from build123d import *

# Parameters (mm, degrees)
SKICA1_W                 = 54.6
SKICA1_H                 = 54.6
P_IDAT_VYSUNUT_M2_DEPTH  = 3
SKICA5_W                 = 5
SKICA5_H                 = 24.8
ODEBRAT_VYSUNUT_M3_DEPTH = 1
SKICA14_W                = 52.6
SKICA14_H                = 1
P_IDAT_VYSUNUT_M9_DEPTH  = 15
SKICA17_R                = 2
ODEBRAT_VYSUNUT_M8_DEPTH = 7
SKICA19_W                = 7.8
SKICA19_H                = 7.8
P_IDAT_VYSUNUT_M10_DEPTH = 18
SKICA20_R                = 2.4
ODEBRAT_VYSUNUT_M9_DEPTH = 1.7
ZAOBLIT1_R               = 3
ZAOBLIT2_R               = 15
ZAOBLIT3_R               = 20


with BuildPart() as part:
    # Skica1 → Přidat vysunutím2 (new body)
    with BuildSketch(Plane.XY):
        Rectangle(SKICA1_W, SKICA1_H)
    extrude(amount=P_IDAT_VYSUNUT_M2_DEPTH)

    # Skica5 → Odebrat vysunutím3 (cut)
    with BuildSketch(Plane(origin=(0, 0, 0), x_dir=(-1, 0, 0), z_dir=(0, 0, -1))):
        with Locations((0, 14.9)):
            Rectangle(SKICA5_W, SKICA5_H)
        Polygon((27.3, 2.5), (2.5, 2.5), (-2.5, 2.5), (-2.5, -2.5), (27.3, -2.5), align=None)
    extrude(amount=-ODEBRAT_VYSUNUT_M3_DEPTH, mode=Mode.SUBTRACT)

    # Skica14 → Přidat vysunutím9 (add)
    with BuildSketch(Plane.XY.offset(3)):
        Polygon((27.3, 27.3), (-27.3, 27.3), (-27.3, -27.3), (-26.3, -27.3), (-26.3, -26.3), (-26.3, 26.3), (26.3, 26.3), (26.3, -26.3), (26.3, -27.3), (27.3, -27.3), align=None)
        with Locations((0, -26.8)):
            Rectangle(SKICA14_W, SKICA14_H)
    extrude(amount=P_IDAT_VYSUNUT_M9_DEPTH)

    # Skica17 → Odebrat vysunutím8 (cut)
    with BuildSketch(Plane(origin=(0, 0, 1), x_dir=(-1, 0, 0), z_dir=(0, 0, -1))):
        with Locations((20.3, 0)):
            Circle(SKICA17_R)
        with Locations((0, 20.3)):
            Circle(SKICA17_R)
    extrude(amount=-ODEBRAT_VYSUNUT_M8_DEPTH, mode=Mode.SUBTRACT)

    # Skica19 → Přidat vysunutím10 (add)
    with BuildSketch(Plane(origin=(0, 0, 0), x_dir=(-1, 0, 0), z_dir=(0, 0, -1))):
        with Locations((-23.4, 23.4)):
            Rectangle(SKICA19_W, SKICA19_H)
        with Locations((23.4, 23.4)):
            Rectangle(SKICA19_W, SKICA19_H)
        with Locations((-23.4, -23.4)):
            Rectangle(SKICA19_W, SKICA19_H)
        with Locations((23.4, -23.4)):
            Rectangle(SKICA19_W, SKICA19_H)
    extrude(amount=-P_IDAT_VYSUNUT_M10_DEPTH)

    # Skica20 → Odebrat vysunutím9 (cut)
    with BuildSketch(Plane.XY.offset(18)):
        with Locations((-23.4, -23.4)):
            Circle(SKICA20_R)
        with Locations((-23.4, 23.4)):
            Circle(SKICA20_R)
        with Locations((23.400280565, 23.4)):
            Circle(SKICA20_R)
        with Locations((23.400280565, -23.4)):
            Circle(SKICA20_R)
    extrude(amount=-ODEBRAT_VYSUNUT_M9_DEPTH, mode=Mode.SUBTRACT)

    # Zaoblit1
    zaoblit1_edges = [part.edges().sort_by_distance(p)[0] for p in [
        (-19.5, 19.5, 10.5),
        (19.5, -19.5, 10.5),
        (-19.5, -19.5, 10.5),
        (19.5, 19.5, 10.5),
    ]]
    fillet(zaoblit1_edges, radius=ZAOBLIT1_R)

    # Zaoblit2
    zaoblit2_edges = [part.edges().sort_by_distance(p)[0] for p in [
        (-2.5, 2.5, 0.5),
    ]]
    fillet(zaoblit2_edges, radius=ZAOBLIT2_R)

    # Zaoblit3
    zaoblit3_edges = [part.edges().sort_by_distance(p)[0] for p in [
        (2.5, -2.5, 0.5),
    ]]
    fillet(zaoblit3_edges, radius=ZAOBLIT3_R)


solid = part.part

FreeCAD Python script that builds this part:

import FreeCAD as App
import Part
import Sketcher
from FreeCAD import Vector


def edges_at(feature, points):
    """Names of the edges that pass closest to the given points."""
    edges = feature.Shape.Edges
    near = lambda p: min(range(len(edges)), key=lambda i: edges[i].distToShape(Part.Vertex(*p))[0])
    return sorted({f"Edge{near(p) + 1}" for p in points})


def add_polygon(sketch, points):
    """Adds a closed chain of lines whose ends are joined by coincident constraints."""
    first, n = sketch.GeometryCount, len(points)
    for a, b in zip(points, points[1:] + points[:1]):
        sketch.addGeometry(Part.LineSegment(App.Vector(*a, 0), App.Vector(*b, 0)), False)
    for i in range(n):
        sketch.addConstraint(Sketcher.Constraint("Coincident", first + i, 2, first + (i + 1) % n, 1))

doc = App.newDocument("Part")
body = doc.addObject("PartDesign::Body", "Body")

sketch1 = body.newObject("Sketcher::SketchObject", "Sketch")
sketch1.AttachmentSupport = (doc.getObject("XY_Plane"), [""])
sketch1.MapMode = "FlatFace"
add_polygon(sketch1, [(-27, 27), (-27, -27), (27, -27), (27, 27)])
sketch1.addConstraint(Sketcher.Constraint("Vertical", 0))
sketch1.addConstraint(Sketcher.Constraint("Horizontal", 1))
sketch1.addConstraint(Sketcher.Constraint("Vertical", 2))
sketch1.addConstraint(Sketcher.Constraint("Horizontal", 3))
sketch1.addConstraint(Sketcher.Constraint("Symmetric", 0, 2, 2, 2, -1, 1))
sketch1.addConstraint(Sketcher.Constraint("Equal", 3, 0))
sketch1.addConstraint(Sketcher.Constraint("DistanceX", 1, 1, 1, 2, 54.6))
pad1 = body.newObject("PartDesign::Pad", "Pad")
pad1.Profile = sketch1
pad1.Length = 3

sketch2 = body.newObject("Sketcher::SketchObject", "Sketch001")
sketch2.AttachmentSupport = (doc.getObject("XY_Plane"), [""])
sketch2.MapMode = "FlatFace"
add_polygon(sketch2, [(2, 27), (2, -2), (-27, -2), (-27, 2), (-2, 2), (-2, 27)])
sketch2.addConstraint(Sketcher.Constraint("Vertical", 0))
sketch2.addConstraint(Sketcher.Constraint("Horizontal", 1))
sketch2.addConstraint(Sketcher.Constraint("Vertical", 2))
sketch2.addConstraint(Sketcher.Constraint("Horizontal", 3))
sketch2.addConstraint(Sketcher.Constraint("Vertical", 4))
sketch2.addConstraint(Sketcher.Constraint("Horizontal", 5))
sketch2.addConstraint(Sketcher.Constraint("Symmetric", 0, 2, 3, 2, -1, 1))
sketch2.addConstraint(Sketcher.Constraint("Equal", 1, 0))
sketch2.addConstraint(Sketcher.Constraint("Equal", 5, 2))
sketch2.addConstraint(Sketcher.Constraint("DistanceX", 5, 1, 5, 2, 5.0))
sketch2.addConstraint(Sketcher.Constraint("DistanceX", 1, 2, 1, 1, 29.8))
pocket1 = body.newObject("PartDesign::Pocket", "Pocket")
pocket1.Profile = sketch2
pocket1.Length = 1
pocket1.Reversed = True

sketch3 = body.newObject("Sketcher::SketchObject", "Sketch002")
sketch3.AttachmentSupport = (doc.getObject("XY_Plane"), [""])
sketch3.MapMode = "FlatFace"
sketch3.AttachmentOffset = App.Placement(Vector(0, 0, 3), App.Rotation())
add_polygon(sketch3, [(27, 27), (-27, 27), (-27, -27), (27, -27)])
add_polygon(sketch3, [(-26, -26), (-26, 26), (26, 26), (26, -26)])
sketch3.addConstraint(Sketcher.Constraint("Horizontal", 0))
sketch3.addConstraint(Sketcher.Constraint("Vertical", 1))
sketch3.addConstraint(Sketcher.Constraint("Horizontal", 2))
sketch3.addConstraint(Sketcher.Constraint("Vertical", 3))
sketch3.addConstraint(Sketcher.Constraint("Vertical", 4))
sketch3.addConstraint(Sketcher.Constraint("Horizontal", 5))
sketch3.addConstraint(Sketcher.Constraint("Vertical", 6))
sketch3.addConstraint(Sketcher.Constraint("Horizontal", 7))
sketch3.addConstraint(Sketcher.Constraint("Symmetric", 0, 2, 2, 2, -1, 1))
sketch3.addConstraint(Sketcher.Constraint("Symmetric", 4, 2, 6, 2, -1, 1))
sketch3.addConstraint(Sketcher.Constraint("Equal", 2, 1))
sketch3.addConstraint(Sketcher.Constraint("Equal", 7, 4))
sketch3.addConstraint(Sketcher.Constraint("DistanceX", 0, 2, 0, 1, 54.6))
sketch3.addConstraint(Sketcher.Constraint("DistanceX", 5, 1, 5, 2, 52.6))
pad2 = body.newObject("PartDesign::Pad", "Pad001")
pad2.Profile = sketch3
pad2.Length = 15

sketch4 = body.newObject("Sketcher::SketchObject", "Sketch003")
sketch4.AttachmentSupport = (doc.getObject("XY_Plane"), [""])
sketch4.MapMode = "FlatFace"
sketch4.AttachmentOffset = App.Placement(Vector(0, 0, 1), App.Rotation())
sketch4.addGeometry(Part.Circle(Vector(-20.3, 0, 0), Vector(0, 0, 1), 2), False)
sketch4.addGeometry(Part.Circle(Vector(0, 20.3, 0), Vector(0, 0, 1), 2), False)
sketch4.addConstraint(Sketcher.Constraint("Equal", 0, 1))
sketch4.addConstraint(Sketcher.Constraint("PointOnObject", 0, 3, -1))
sketch4.addConstraint(Sketcher.Constraint("PointOnObject", 1, 3, -2))
sketch4.addConstraint(Sketcher.Constraint("Diameter", 0, 4.0))
sketch4.addConstraint(Sketcher.Constraint("DistanceX", 0, 3, -1, 1, 20.3))
sketch4.addConstraint(Sketcher.Constraint("DistanceY", -1, 1, 1, 3, 20.3))
pocket2 = body.newObject("PartDesign::Pocket", "Pocket001")
pocket2.Profile = sketch4
pocket2.Length = 7
pocket2.Reversed = True

sketch5 = body.newObject("Sketcher::SketchObject", "Sketch004")
sketch5.AttachmentSupport = (doc.getObject("XY_Plane"), [""])
sketch5.MapMode = "FlatFace"
add_polygon(sketch5, [(27, 27), (27, 20), (20, 20), (20, 27)])
add_polygon(sketch5, [(-20, 27), (-20, 20), (-27, 20), (-27, 27)])
add_polygon(sketch5, [(27, -20), (27, -27), (20, -27), (20, -20)])
add_polygon(sketch5, [(-20, -20), (-20, -27), (-27, -27), (-27, -20)])
sketch5.addConstraint(Sketcher.Constraint("Vertical", 0))
sketch5.addConstraint(Sketcher.Constraint("Horizontal", 1))
sketch5.addConstraint(Sketcher.Constraint("Vertical", 2))
sketch5.addConstraint(Sketcher.Constraint("Horizontal", 3))
sketch5.addConstraint(Sketcher.Constraint("Vertical", 4))
sketch5.addConstraint(Sketcher.Constraint("Horizontal", 5))
sketch5.addConstraint(Sketcher.Constraint("Vertical", 6))
sketch5.addConstraint(Sketcher.Constraint("Horizontal", 7))
sketch5.addConstraint(Sketcher.Constraint("Vertical", 8))
sketch5.addConstraint(Sketcher.Constraint("Horizontal", 9))
sketch5.addConstraint(Sketcher.Constraint("Vertical", 10))
sketch5.addConstraint(Sketcher.Constraint("Horizontal", 11))
sketch5.addConstraint(Sketcher.Constraint("Vertical", 12))
sketch5.addConstraint(Sketcher.Constraint("Horizontal", 13))
sketch5.addConstraint(Sketcher.Constraint("Vertical", 14))
sketch5.addConstraint(Sketcher.Constraint("Horizontal", 15))
sketch5.addConstraint(Sketcher.Constraint("Symmetric", 6, 2, 8, 2, -1, 1))
sketch5.addConstraint(Sketcher.Constraint("Symmetric", 4, 2, 10, 2, -1, 1))
sketch5.addConstraint(Sketcher.Constraint("Symmetric", 2, 2, 12, 2, -1, 1))
sketch5.addConstraint(Sketcher.Constraint("Symmetric", 0, 2, 14, 2, -1, 1))
sketch5.addConstraint(Sketcher.Constraint("Symmetric", 1, 2, 4, 2, -2))
sketch5.addConstraint(Sketcher.Constraint("Symmetric", 3, 2, 6, 2, -2))
sketch5.addConstraint(Sketcher.Constraint("Equal", 15, 0))
sketch5.addConstraint(Sketcher.Constraint("DistanceX", 1, 2, 1, 1, 7.8))
sketch5.addConstraint(Sketcher.Constraint("DistanceX", 4, 2, 1, 2, 39.0))
sketch5.addConstraint(Sketcher.Constraint("DistanceY", 10, 2, 1, 2, 39.0))
pad3 = body.newObject("PartDesign::Pad", "Pad002")
pad3.Profile = sketch5
pad3.Length = 18

sketch6 = body.newObject("Sketcher::SketchObject", "Sketch005")
sketch6.AttachmentSupport = (doc.getObject("XY_Plane"), [""])
sketch6.MapMode = "FlatFace"
sketch6.AttachmentOffset = App.Placement(Vector(0, 0, 18), App.Rotation())
sketch6.addGeometry(Part.Circle(Vector(-23.4, -23.4, 0), Vector(0, 0, 1), 2.4), False)
sketch6.addGeometry(Part.Circle(Vector(-23.4, 23.4, 0), Vector(0, 0, 1), 2.4), False)
sketch6.addGeometry(Part.Circle(Vector(23.4, 23.4, 0), Vector(0, 0, 1), 2.4), False)
sketch6.addGeometry(Part.Circle(Vector(23.4, -23.4, 0), Vector(0, 0, 1), 2.4), False)
sketch6.addConstraint(Sketcher.Constraint("Equal", 0, 1))
sketch6.addConstraint(Sketcher.Constraint("Equal", 1, 2))
sketch6.addConstraint(Sketcher.Constraint("Equal", 2, 3))
sketch6.addConstraint(Sketcher.Constraint("Symmetric", 0, 3, 1, 3, -1))
sketch6.addConstraint(Sketcher.Constraint("Symmetric", 2, 3, 3, 3, -1))
sketch6.addConstraint(Sketcher.Constraint("Horizontal", 1, 3, 2, 3))
sketch6.addConstraint(Sketcher.Constraint("Diameter", 0, 4.8))
sketch6.addConstraint(Sketcher.Constraint("DistanceX", 0, 3, -1, 1, 23.4))
sketch6.addConstraint(Sketcher.Constraint("DistanceY", 0, 3, -1, 1, 23.4))
sketch6.addConstraint(Sketcher.Constraint("DistanceX", -1, 1, 2, 3, 23.400281))
pocket3 = body.newObject("PartDesign::Pocket", "Pocket002")
pocket3.Profile = sketch6
pocket3.Length = 1.7
doc.recompute()

fillet = body.newObject("PartDesign::Fillet", "Fillet")
fillet.Base = (pocket3, edges_at(pocket3, [
    (-19.5, 19.5, 10.5),
    (19.5, -19.5, 10.5),
    (-19.5, -19.5, 10.5),
    (19.5, 19.5, 10.5),
]))
fillet.Radius = 3
doc.recompute()

fillet2 = body.newObject("PartDesign::Fillet", "Fillet001")
fillet2.Base = (fillet, edges_at(fillet, [(-2.5, 2.5, 0.5)]))
fillet2.Radius = 15
doc.recompute()

fillet3 = body.newObject("PartDesign::Fillet", "Fillet002")
fillet3.Base = (fillet2, edges_at(fillet2, [(2.5, -2.5, 0.5)]))
fillet3.Radius = 20

doc.recompute()
